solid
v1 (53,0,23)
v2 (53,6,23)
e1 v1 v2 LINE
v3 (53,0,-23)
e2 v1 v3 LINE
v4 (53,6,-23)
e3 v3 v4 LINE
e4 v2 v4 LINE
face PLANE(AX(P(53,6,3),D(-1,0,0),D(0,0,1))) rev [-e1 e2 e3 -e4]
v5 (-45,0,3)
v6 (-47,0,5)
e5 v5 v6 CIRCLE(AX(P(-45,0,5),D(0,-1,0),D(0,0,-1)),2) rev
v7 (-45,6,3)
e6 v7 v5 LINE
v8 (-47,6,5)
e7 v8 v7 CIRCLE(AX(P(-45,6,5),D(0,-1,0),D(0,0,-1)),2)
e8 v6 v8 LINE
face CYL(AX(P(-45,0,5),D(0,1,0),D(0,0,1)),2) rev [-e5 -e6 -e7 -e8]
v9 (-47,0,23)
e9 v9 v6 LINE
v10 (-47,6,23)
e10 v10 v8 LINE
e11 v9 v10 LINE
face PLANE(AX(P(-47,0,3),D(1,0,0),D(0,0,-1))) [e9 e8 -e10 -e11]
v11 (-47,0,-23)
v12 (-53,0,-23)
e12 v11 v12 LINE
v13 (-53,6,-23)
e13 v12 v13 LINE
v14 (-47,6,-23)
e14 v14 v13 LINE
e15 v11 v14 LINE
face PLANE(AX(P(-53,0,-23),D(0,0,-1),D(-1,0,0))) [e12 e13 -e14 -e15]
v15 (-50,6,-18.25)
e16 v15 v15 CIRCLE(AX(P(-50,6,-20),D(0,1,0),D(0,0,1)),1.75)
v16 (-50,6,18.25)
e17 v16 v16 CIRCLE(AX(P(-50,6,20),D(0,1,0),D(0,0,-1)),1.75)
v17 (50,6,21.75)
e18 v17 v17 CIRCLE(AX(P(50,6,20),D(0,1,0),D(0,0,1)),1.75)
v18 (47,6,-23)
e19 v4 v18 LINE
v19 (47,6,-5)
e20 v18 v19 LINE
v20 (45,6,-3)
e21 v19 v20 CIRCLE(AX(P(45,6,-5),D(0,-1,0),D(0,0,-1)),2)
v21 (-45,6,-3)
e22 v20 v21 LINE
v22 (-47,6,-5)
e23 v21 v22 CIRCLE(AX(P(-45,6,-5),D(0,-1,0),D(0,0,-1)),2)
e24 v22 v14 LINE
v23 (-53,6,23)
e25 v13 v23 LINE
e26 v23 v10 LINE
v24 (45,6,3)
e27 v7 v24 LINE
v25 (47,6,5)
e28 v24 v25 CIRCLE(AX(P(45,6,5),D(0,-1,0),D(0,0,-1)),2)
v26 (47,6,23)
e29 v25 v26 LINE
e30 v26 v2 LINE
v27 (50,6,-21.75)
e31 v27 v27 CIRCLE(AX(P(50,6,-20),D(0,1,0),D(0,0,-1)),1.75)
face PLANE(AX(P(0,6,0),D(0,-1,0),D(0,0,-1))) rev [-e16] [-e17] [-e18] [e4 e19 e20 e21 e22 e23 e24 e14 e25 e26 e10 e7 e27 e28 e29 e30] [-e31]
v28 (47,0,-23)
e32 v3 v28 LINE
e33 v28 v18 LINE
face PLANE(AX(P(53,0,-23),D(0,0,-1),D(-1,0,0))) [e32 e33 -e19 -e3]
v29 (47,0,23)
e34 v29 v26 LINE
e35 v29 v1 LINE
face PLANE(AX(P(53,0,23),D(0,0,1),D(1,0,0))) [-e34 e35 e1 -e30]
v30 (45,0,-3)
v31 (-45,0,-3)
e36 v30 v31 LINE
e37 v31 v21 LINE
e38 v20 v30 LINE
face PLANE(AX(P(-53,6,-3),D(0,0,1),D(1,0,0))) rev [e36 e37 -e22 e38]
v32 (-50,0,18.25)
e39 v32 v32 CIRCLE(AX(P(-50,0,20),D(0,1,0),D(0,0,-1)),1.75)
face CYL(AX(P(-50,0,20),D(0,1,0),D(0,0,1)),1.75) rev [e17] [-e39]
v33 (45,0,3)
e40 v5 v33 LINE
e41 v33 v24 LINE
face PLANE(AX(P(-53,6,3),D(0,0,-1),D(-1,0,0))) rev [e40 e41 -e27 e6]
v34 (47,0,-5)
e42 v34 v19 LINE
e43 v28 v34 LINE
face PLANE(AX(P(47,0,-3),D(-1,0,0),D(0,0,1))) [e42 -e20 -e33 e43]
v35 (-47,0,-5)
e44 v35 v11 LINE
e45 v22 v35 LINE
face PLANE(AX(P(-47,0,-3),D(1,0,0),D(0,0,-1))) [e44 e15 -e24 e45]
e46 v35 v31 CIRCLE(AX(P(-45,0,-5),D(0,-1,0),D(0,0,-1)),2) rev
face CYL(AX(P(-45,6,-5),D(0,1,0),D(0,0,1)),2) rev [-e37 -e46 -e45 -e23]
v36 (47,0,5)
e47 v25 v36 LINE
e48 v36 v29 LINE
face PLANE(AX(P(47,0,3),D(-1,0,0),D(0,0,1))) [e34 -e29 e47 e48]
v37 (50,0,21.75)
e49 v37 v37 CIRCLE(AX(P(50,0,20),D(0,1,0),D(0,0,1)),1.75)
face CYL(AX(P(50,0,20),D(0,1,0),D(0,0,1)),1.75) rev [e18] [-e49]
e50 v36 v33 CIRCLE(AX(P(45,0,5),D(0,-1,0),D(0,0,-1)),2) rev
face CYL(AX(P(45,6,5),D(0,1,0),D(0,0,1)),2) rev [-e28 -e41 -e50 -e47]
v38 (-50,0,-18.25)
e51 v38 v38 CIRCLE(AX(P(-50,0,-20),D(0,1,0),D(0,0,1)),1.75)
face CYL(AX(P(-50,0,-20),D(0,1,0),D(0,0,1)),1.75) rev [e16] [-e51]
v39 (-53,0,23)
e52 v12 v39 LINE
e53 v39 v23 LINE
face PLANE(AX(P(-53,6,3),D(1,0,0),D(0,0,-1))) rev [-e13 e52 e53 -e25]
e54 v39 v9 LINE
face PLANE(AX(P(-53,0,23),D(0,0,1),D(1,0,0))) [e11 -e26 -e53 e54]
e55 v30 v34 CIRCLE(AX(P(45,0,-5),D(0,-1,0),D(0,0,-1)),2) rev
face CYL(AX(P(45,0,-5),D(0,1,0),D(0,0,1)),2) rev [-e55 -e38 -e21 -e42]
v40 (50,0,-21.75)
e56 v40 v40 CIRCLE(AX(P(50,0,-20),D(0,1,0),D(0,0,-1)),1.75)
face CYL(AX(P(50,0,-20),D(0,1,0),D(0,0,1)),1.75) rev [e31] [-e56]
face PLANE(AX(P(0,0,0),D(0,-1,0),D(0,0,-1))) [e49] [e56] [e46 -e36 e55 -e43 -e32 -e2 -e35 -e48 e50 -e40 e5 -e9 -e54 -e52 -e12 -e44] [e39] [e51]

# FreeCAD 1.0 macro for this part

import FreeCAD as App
import Part
import Sketcher

V = App.Vector


def edges_at(feature, points):
    """Names of the edges that pass closest to the given points."""
    edges = feature.Shape.Edges
    near = lambda p: min(range(len(edges)), key=lambda i: edges[i].distToShape(Part.Vertex(*p))[0])
    return sorted({f"Edge{near(p) + 1}" for p in points})


def add_polygon(sketch, points):
    """Adds a closed chain of lines whose ends are joined by coincident constraints."""
    first, n = sketch.GeometryCount, len(points)
    for a, b in zip(points, points[1:] + points[:1]):
        sketch.addGeometry(Part.LineSegment(App.Vector(*a, 0), App.Vector(*b, 0)), False)
    for i in range(n):
        sketch.addConstraint(Sketcher.Constraint("Coincident", first + i, 2, first + (i + 1) % n, 1))

doc = App.newDocument("Part")
body = doc.addObject("PartDesign::Body", "Body")

# Sketch on XZ plane
sketch1 = body.newObject("Sketcher::SketchObject", "Sketch")
sketch1.AttachmentSupport = (doc.getObject("XZ_Plane"), [""])
sketch1.MapMode = "FlatFace"
add_polygon(sketch1, [(-53, -3), (-53, 3), (53, 3), (53, -3)])  # lines 0-3
sketch1.addConstraint(Sketcher.Constraint("Vertical", 0))
sketch1.addConstraint(Sketcher.Constraint("Horizontal", 1))
sketch1.addConstraint(Sketcher.Constraint("Vertical", 2))
sketch1.addConstraint(Sketcher.Constraint("Horizontal", 3))
sketch1.addConstraint(Sketcher.Constraint("Symmetric", 0, 2, 2, 2, -1, 1))
sketch1.addConstraint(Sketcher.Constraint("DistanceX", 1, 1, 1, 2, 106.0))
sketch1.addConstraint(Sketcher.Constraint("DistanceY", 0, 1, 0, 2, 6.0))
pad1 = body.newObject("PartDesign::Pad", "Pad")
pad1.Profile = sketch1
pad1.Length = 6
pad1.Reversed = True

# Sketch on XZ plane
sketch2 = body.newObject("Sketcher::SketchObject", "Sketch001")
sketch2.AttachmentSupport = (doc.getObject("XZ_Plane"), [""])
sketch2.MapMode = "FlatFace"
sketch2.AttachmentOffset = App.Placement(V(0, 0, -6), App.Rotation())
add_polygon(sketch2, [(-53, -23), (-53, -3), (-47, -3), (-47, -23)])  # lines 0-3
sketch2.addGeometry(Part.Circle(V(-50, -20, 0), V(0, 0, 1), 1.8), False)  # 4
add_polygon(sketch2, [(-53, 3), (-53, 23), (-47, 23), (-47, 3)])  # lines 5-8
sketch2.addGeometry(Part.Circle(V(-50, 20, 0), V(0, 0, 1), 1.8), False)  # 9
add_polygon(sketch2, [(47, 3), (47, 23), (53, 23), (53, 3)])  # lines 10-13
sketch2.addGeometry(Part.Circle(V(50, 20, 0), V(0, 0, 1), 1.8), False)  # 14
add_polygon(sketch2, [(47, -23), (47, -3), (53, -3), (53, -23)])  # lines 15-18
sketch2.addGeometry(Part.Circle(V(50, -20, 0), V(0, 0, 1), 1.8), False)  # 19
sketch2.addConstraint(Sketcher.Constraint("Vertical", 0))
sketch2.addConstraint(Sketcher.Constraint("Horizontal", 1))
sketch2.addConstraint(Sketcher.Constraint("Vertical", 2))
sketch2.addConstraint(Sketcher.Constraint("Horizontal", 3))
sketch2.addConstraint(Sketcher.Constraint("Vertical", 5))
sketch2.addConstraint(Sketcher.Constraint("Horizontal", 6))
sketch2.addConstraint(Sketcher.Constraint("Vertical", 7))
sketch2.addConstraint(Sketcher.Constraint("Horizontal", 8))
sketch2.addConstraint(Sketcher.Constraint("Vertical", 10))
sketch2.addConstraint(Sketcher.Constraint("Horizontal", 11))
sketch2.addConstraint(Sketcher.Constraint("Vertical", 12))
sketch2.addConstraint(Sketcher.Constraint("Horizontal", 13))
sketch2.addConstraint(Sketcher.Constraint("Vertical", 15))
sketch2.addConstraint(Sketcher.Constraint("Horizontal", 16))
sketch2.addConstraint(Sketcher.Constraint("Vertical", 17))
sketch2.addConstraint(Sketcher.Constraint("Horizontal", 18))
sketch2.addConstraint(Sketcher.Constraint("Equal", 4, 9))
sketch2.addConstraint(Sketcher.Constraint("Equal", 9, 14))
sketch2.addConstraint(Sketcher.Constraint("Equal", 14, 19))
sketch2.addConstraint(Sketcher.Constraint("Symmetric", 4, 3, 14, 3, -1, 1))
sketch2.addConstraint(Sketcher.Constraint("Symmetric", 9, 3, 19, 3, -1, 1))
sketch2.addConstraint(Sketcher.Constraint("Symmetric", 2, 2, 10, 2, -1, 1))
sketch2.addConstraint(Sketcher.Constraint("Symmetric", 0, 2, 12, 2, -1, 1))
sketch2.addConstraint(Sketcher.Constraint("Symmetric", 7, 2, 15, 2, -1, 1))
sketch2.addConstraint(Sketcher.Constraint("Symmetric", 5, 2, 17, 2, -1, 1))
sketch2.addConstraint(Sketcher.Constraint("Symmetric", 9, 3, 14, 3, -2))
sketch2.addConstraint(Sketcher.Constraint("Symmetric", 6, 2, 10, 2, -2))
sketch2.addConstraint(Sketcher.Constraint("Symmetric", 8, 2, 12, 2, -2))
sketch2.addConstraint(Sketcher.Constraint("Diameter", 4, 3.5))
sketch2.addConstraint(Sketcher.Constraint("DistanceX", 1, 1, 1, 2, 6.0))
sketch2.addConstraint(Sketcher.Constraint("DistanceY", 0, 1, 0, 2, 20.0))
sketch2.addConstraint(Sketcher.Constraint("DistanceX", 4, 3, -1, 1, 50.0))
sketch2.addConstraint(Sketcher.Constraint("DistanceY", 4, 3, -1, 1, 20.0))
sketch2.addConstraint(Sketcher.Constraint("DistanceX", 0, 2, -1, 1, 53.0))
sketch2.addConstraint(Sketcher.Constraint("DistanceY", 0, 2, -1, 1, 3.0))
pad2 = body.newObject("PartDesign::Pad", "Pad001")
pad2.Profile = sketch2
pad2.Length = 6
doc.recompute()

fillet = body.newObject("PartDesign::Fillet", "Fillet")
fillet.Base = (pad2, edges_at(pad2, [
    (-47, 3, -3),
    (-47, 3, 3),
    (47, 3, 3),
    (47, 3, -3),
]))
fillet.Radius = 2

doc.recompute()
